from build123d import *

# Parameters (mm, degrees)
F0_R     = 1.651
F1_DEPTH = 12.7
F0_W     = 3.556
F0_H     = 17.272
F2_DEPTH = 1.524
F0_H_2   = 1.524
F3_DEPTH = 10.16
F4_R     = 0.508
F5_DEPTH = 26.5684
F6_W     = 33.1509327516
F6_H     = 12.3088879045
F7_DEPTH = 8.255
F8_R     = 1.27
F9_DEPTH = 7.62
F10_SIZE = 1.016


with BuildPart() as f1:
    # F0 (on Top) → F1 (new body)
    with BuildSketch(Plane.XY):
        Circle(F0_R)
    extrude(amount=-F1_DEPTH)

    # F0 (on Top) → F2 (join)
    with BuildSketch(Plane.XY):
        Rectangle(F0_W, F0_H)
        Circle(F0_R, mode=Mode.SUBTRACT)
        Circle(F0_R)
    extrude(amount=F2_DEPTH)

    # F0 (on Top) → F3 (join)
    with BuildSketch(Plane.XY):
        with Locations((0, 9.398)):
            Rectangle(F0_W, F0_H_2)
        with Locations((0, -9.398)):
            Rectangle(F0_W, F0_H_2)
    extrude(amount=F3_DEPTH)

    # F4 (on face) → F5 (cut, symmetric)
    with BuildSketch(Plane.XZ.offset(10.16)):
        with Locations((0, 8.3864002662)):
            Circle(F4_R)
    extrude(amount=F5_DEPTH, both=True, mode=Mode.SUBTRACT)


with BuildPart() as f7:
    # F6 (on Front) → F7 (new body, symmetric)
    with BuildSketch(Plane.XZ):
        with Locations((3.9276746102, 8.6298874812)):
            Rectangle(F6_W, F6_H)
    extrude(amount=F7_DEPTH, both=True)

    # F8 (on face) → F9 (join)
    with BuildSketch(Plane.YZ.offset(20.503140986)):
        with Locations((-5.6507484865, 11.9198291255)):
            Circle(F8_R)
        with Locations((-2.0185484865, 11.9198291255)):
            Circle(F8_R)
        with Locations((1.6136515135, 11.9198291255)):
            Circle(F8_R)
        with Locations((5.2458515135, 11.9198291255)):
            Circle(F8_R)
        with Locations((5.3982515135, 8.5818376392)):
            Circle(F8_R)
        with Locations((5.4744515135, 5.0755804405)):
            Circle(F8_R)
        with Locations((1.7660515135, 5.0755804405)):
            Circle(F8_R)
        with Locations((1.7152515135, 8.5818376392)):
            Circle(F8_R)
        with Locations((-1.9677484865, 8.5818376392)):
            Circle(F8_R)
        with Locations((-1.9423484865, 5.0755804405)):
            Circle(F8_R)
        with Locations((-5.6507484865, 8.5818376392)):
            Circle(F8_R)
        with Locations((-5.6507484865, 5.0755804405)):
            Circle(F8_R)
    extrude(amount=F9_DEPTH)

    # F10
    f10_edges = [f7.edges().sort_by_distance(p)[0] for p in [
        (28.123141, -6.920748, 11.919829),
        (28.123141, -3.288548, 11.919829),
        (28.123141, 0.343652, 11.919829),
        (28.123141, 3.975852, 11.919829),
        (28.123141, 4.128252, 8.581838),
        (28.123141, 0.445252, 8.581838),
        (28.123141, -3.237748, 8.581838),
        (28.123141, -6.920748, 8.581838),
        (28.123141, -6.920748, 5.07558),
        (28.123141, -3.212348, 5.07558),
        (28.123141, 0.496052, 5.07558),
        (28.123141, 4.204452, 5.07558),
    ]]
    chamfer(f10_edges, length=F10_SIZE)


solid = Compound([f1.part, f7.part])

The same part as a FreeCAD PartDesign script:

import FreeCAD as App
import Part
import Sketcher

V = App.Vector
Q = App.Units.Quantity


def edges_at(feature, points):
    """Names of the edges that pass closest to the given points."""
    edges = feature.Shape.Edges
    near = lambda p: min(range(len(edges)), key=lambda i: edges[i].distToShape(Part.Vertex(*p))[0])
    return sorted({f"Edge{near(p) + 1}" for p in points})

doc = App.newDocument("Part")
body = doc.addObject("PartDesign::Body", "Body")

# Sketch on XY plane
sketch1 = body.newObject("Sketcher::SketchObject", "Sketch")
sketch1.AttachmentSupport = (doc.getObject("XY_Plane"), [""])
sketch1.MapMode = "FlatFace"
sketch1.addGeometry(Part.Circle(V(0, 0, 0), V(0, 0, 1), 1.651), False)
sketch1.addConstraint([
    Sketcher.Constraint("Coincident", 0, 3, -1, 1),
    Sketcher.Constraint("Diameter", 0, Q("0.13 in")),
])
pad1 = body.newObject("PartDesign::Pad", "Pad")
pad1.Profile = sketch1
pad1.Length = Q("0.5 in")
pad1.Reversed = True

# Sketch on XY plane
sketch2 = body.newObject("Sketcher::SketchObject", "Sketch001")
sketch2.AttachmentSupport = (doc.getObject("XY_Plane"), [""])
sketch2.MapMode = "FlatFace"
sketch2.addGeometry([
    Part.LineSegment(V(-1.778, 8.636, 0), V(-1.778, -8.636, 0)),
    Part.LineSegment(V(-1.778, -8.636, 0), V(1.778, -8.636, 0)),
    Part.LineSegment(V(1.778, -8.636, 0), V(1.778, 8.636, 0)),
    Part.LineSegment(V(1.778, 8.636, 0), V(-1.778, 8.636, 0)),
], False)
sketch2.addConstraint([
    Sketcher.Constraint("Coincident", 0, 2, 1, 1),
    Sketcher.Constraint("Coincident", 1, 2, 2, 1),
    Sketcher.Constraint("Coincident", 2, 2, 3, 1),
    Sketcher.Constraint("Coincident", 3, 2, 0, 1),
    Sketcher.Constraint("Vertical", 0),
    Sketcher.Constraint("Horizontal", 1),
    Sketcher.Constraint("Vertical", 2),
    Sketcher.Constraint("Horizontal", 3),
    Sketcher.Constraint("Symmetric", 0, 2, 2, 2, -1, 1),
    Sketcher.Constraint("DistanceX", 1, 1, 1, 2, Q("0.14 in")),
    Sketcher.Constraint("DistanceY", 0, 2, 0, 1, Q("0.68 in")),
])
pad2 = body.newObject("PartDesign::Pad", "Pad001")
pad2.Profile = sketch2
pad2.Length = Q("0.06 in")

# Sketch on XY plane
sketch3 = body.newObject("Sketcher::SketchObject", "Sketch002")
sketch3.AttachmentSupport = (doc.getObject("XY_Plane"), [""])
sketch3.MapMode = "FlatFace"
sketch3.addGeometry([
    Part.LineSegment(V(-1.778, 10.16, 0), V(-1.778, 8.636, 0)),  # 0
    Part.LineSegment(V(-1.778, 8.636, 0), V(1.778, 8.636, 0)),  # 1
    Part.LineSegment(V(1.778, 8.636, 0), V(1.778, 10.16, 0)),  # 2
    Part.LineSegment(V(1.778, 10.16, 0), V(-1.778, 10.16, 0)),  # 3
    Part.LineSegment(V(-1.778, -8.636, 0), V(-1.778, -10.16, 0)),  # 4
    Part.LineSegment(V(-1.778, -10.16, 0), V(1.778, -10.16, 0)),  # 5
    Part.LineSegment(V(1.778, -10.16, 0), V(1.778, -8.636, 0)),  # 6
    Part.LineSegment(V(1.778, -8.636, 0), V(-1.778, -8.636, 0)),  # 7
], False)
sketch3.addConstraint([
    Sketcher.Constraint("Coincident", 0, 2, 1, 1),
    Sketcher.Constraint("Coincident", 1, 2, 2, 1),
    Sketcher.Constraint("Coincident", 2, 2, 3, 1),
    Sketcher.Constraint("Coincident", 3, 2, 0, 1),
    Sketcher.Constraint("Coincident", 4, 2, 5, 1),
    Sketcher.Constraint("Coincident", 5, 2, 6, 1),
    Sketcher.Constraint("Coincident", 6, 2, 7, 1),
    Sketcher.Constraint("Coincident", 7, 2, 4, 1),
    Sketcher.Constraint("Vertical", 0),
    Sketcher.Constraint("Horizontal", 1),
    Sketcher.Constraint("Vertical", 2),
    Sketcher.Constraint("Horizontal", 3),
    Sketcher.Constraint("Vertical", 4),
    Sketcher.Constraint("Horizontal", 5),
    Sketcher.Constraint("Vertical", 6),
    Sketcher.Constraint("Horizontal", 7),
    Sketcher.Constraint("Symmetric", 2, 2, 4, 2, -1, 1),
    Sketcher.Constraint("Symmetric", 0, 2, 6, 2, -1, 1),
    Sketcher.Constraint("Vertical", 3, 2, 4, 2),
    Sketcher.Constraint("DistanceX", 1, 1, 1, 2, Q("0.14 in")),
    Sketcher.Constraint("DistanceY", 0, 2, 0, 1, Q("0.06 in")),
    Sketcher.Constraint("DistanceY", -1, 1, 2, 2, Q("0.4 in")),
])
pad3 = body.newObject("PartDesign::Pad", "Pad002")
pad3.Profile = sketch3
pad3.Length = Q("0.4 in")

# Sketch on XZ plane
sketch4 = body.newObject("Sketcher::SketchObject", "Sketch003")
sketch4.AttachmentSupport = (doc.getObject("XZ_Plane"), [""])
sketch4.MapMode = "FlatFace"
sketch4.AttachmentOffset = App.Placement(V(0, 0, 0.4 * 25.4), App.Rotation())
sketch4.addGeometry(Part.Circle(V(0, 8.3864, 0), V(0, 0, 1), 0.508), False)
sketch4.addConstraint([
    Sketcher.Constraint("PointOnObject", 0, 3, -2),
    Sketcher.Constraint("Diameter", 0, Q("0.04 in")),
    Sketcher.Constraint("DistanceY", -1, 1, 0, 3, Q("8.3864 mm")),
])
pocket1 = body.newObject("PartDesign::Pocket", "Pocket")
pocket1.Profile = sketch4
pocket1.Length = Q("2.092 in")
pocket1.Midplane = True
body2 = doc.addObject("PartDesign::Body", "Body001")

# Sketch on XZ plane
sketch5 = body2.newObject("Sketcher::SketchObject", "Sketch004")
sketch5.AttachmentSupport = (doc.getObject("XZ_Plane001"), [""])
sketch5.MapMode = "FlatFace"
sketch5.addGeometry([
    Part.LineSegment(V(-12.647792, 14.784331, 0), V(-12.647792, 2.475444, 0)),
    Part.LineSegment(V(-12.647792, 2.475444, 0), V(20.503141, 2.475444, 0)),
    Part.LineSegment(V(20.503141, 2.475444, 0), V(20.503141, 14.784331, 0)),
    Part.LineSegment(V(20.503141, 14.784331, 0), V(-12.647792, 14.784331, 0)),
], False)
sketch5.addConstraint([
    Sketcher.Constraint("Coincident", 0, 2, 1, 1),
    Sketcher.Constraint("Coincident", 1, 2, 2, 1),
    Sketcher.Constraint("Coincident", 2, 2, 3, 1),
    Sketcher.Constraint("Coincident", 3, 2, 0, 1),
    Sketcher.Constraint("Vertical", 0),
    Sketcher.Constraint("Horizontal", 1),
    Sketcher.Constraint("Vertical", 2),
    Sketcher.Constraint("Horizontal", 3),
    Sketcher.Constraint("DistanceX", 1, 1, 1, 2, Q("33.150933 mm")),
    Sketcher.Constraint("DistanceY", 0, 2, 0, 1, Q("12.308888 mm")),
    Sketcher.Constraint("DistanceX", 0, 2, -1, 1, Q("12.647792 mm")),
    Sketcher.Constraint("DistanceY", -1, 1, 2, 2, Q("14.784331 mm")),
])
pad4 = body2.newObject("PartDesign::Pad", "Pad003")
pad4.Profile = sketch5
pad4.Length = Q("0.65 in")
pad4.Midplane = True

# Sketch on YZ plane
sketch6 = body2.newObject("Sketcher::SketchObject", "Sketch005")
sketch6.AttachmentSupport = (doc.getObject("YZ_Plane001"), [""])
sketch6.MapMode = "FlatFace"
sketch6.AttachmentOffset = App.Placement(V(0, 0, 20.503141), App.Rotation())
sketch6.addGeometry([
    Part.Circle(V(-5.650748, 11.919829, 0), V(0, 0, 1), 1.27),  # 0
    Part.Circle(V(-2.018548, 11.919829, 0), V(0, 0, 1), 1.27),  # 1
    Part.Circle(V(1.613652, 11.919829, 0), V(0, 0, 1), 1.27),  # 2
    Part.Circle(V(5.245852, 11.919829, 0), V(0, 0, 1), 1.27),  # 3
    Part.Circle(V(5.398252, 8.581838, 0), V(0, 0, 1), 1.27),  # 4
    Part.Circle(V(5.474452, 5.07558, 0), V(0, 0, 1), 1.27),  # 5
    Part.Circle(V(1.766052, 5.07558, 0), V(0, 0, 1), 1.27),  # 6
    Part.Circle(V(1.715252, 8.581838, 0), V(0, 0, 1), 1.27),  # 7
    Part.Circle(V(-1.967748, 8.581838, 0), V(0, 0, 1), 1.27),  # 8
    Part.Circle(V(-1.942348, 5.07558, 0), V(0, 0, 1), 1.27),  # 9
    Part.Circle(V(-5.650748, 8.581838, 0), V(0, 0, 1), 1.27),  # 10
    Part.Circle(V(-5.650748, 5.07558, 0), V(0, 0, 1), 1.27),  # 11
], False)
sketch6.addConstraint([
    Sketcher.Constraint("Equal", 0, 1),
    Sketcher.Constraint("Equal", 1, 2),
    Sketcher.Constraint("Equal", 2, 3),
    Sketcher.Constraint("Equal", 3, 4),
    Sketcher.Constraint("Equal", 4, 5),
    Sketcher.Constraint("Equal", 5, 6),
    Sketcher.Constraint("Equal", 6, 7),
    Sketcher.Constraint("Equal", 7, 8),
    Sketcher.Constraint("Equal", 8, 9),
    Sketcher.Constraint("Equal", 9, 10),
    Sketcher.Constraint("Equal", 10, 11),
    Sketcher.Constraint("Horizontal", 0, 3, 1, 3),
    Sketcher.Constraint("Horizontal", 1, 3, 2, 3),
    Sketcher.Constraint("Horizontal", 2, 3, 3, 3),
    Sketcher.Constraint("Horizontal", 5, 3, 6, 3),
    Sketcher.Constraint("Horizontal", 4, 3, 7, 3),
    Sketcher.Constraint("Horizontal", 7, 3, 8, 3),
    Sketcher.Constraint("Horizontal", 6, 3, 9, 3),
    Sketcher.Constraint("Horizontal", 8, 3, 10, 3),
    Sketcher.Constraint("Horizontal", 9, 3, 11, 3),
    Sketcher.Constraint("Vertical", 0, 3, 10, 3),
    Sketcher.Constraint("Vertical", 10, 3, 11, 3),
    Sketcher.Constraint("Diameter", 0, Q("0.1 in")),
    Sketcher.Constraint("DistanceX", 10, 3, 7, 3, Q("0.29 in")),
    Sketcher.Constraint("DistanceX", 0, 3, 1, 3, Q("0.143 in")),
    Sketcher.Constraint("DistanceX", 1, 3, 2, 3, Q("0.143 in")),
    Sketcher.Constraint("DistanceX", 2, 3, 3, 3, Q("0.143 in")),
    Sketcher.Constraint("DistanceX", 3, 3, 4, 3, Q("0.006 in")),
    Sketcher.Constraint("DistanceX", 4, 3, 5, 3, Q("0.003 in")),
    Sketcher.Constraint("DistanceX", 6, 3, 5, 3, Q("0.146 in")),
    Sketcher.Constraint("DistanceX", 1, 3, 8, 3, Q("0.002 in")),
    Sketcher.Constraint("DistanceX", 8, 3, 9, 3, Q("0.001 in")),
    Sketcher.Constraint("DistanceX", 0, 3, -1, 1, Q("5.650748 mm")),
    Sketcher.Constraint("DistanceY", -1, 1, 0, 3, Q("11.919829 mm")),
    Sketcher.Constraint("DistanceY", -1, 1, 5, 3, Q("5.07558 mm")),
    Sketcher.Constraint("DistanceY", 4, 3, 3, 3, Q("3.337991 mm")),
])
pad5 = body2.newObject("PartDesign::Pad", "Pad004")
pad5.Profile = sketch6
pad5.Length = Q("0.3 in")
doc.recompute()

chamfer = body2.newObject("PartDesign::Chamfer", "Chamfer")
chamfer.Base = (pad5, edges_at(pad5, [
    (28.123, -6.921, 11.92),
    (28.123, -3.289, 11.92),
    (28.123, 0.344, 11.92),
    (28.123, 3.976, 11.92),
    (28.123, 4.128, 8.582),
    (28.123, 0.445, 8.582),
    (28.123, -3.238, 8.582),
    (28.123, -6.921, 8.582),
    (28.123, -6.921, 5.076),
    (28.123, -3.212, 5.076),
    (28.123, 0.496, 5.076),
    (28.123, 4.204, 5.076),
]))
chamfer.Size = Q("0.04 in")

doc.recompute()
